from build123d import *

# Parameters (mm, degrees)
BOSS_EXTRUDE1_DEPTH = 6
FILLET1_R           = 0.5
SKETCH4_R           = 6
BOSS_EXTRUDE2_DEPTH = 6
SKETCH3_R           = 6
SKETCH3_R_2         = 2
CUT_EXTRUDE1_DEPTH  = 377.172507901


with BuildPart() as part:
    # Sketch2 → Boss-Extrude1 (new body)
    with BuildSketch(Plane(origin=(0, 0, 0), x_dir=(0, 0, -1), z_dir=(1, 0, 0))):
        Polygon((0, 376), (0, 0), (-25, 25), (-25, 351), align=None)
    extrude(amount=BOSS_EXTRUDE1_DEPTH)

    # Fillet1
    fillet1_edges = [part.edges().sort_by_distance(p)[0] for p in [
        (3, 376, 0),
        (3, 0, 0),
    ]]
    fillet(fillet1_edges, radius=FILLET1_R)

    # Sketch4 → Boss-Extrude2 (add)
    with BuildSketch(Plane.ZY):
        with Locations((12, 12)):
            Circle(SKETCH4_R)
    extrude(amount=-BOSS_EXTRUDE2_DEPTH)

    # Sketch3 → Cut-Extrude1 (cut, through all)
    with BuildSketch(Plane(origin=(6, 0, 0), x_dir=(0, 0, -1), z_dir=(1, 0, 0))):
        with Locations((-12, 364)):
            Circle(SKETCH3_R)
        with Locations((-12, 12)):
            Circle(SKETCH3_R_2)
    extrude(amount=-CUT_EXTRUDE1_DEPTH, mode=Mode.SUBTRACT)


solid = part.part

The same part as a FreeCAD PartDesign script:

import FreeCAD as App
import Part
import Sketcher

V = App.Vector
Q = App.Units.Quantity


def edges_at(feature, points):
    """Names of the edges that pass closest to the given points."""
    edges = feature.Shape.Edges
    near = lambda p: min(range(len(edges)), key=lambda i: edges[i].distToShape(Part.Vertex(*p))[0])
    return sorted({f"Edge{near(p) + 1}" for p in points})

doc = App.newDocument("Part")
body = doc.addObject("PartDesign::Body", "Body")

# Sketch on YZ plane
sketch1 = body.newObject("Sketcher::SketchObject", "Sketch")
sketch1.AttachmentSupport = (doc.getObject("YZ_Plane"), [""])
sketch1.MapMode = "FlatFace"
sketch1.addGeometry(Part.LineSegment(V(0, 0, 0), V(376, 0, 0)), False)
sketch1.addGeometry(Part.LineSegment(V(376, 0, 0), V(351, 25, 0)), False)
sketch1.addGeometry(Part.LineSegment(V(351, 25, 0), V(25, 25, 0)), False)
sketch1.addGeometry(Part.LineSegment(V(25, 25, 0), V(0, 0, 0)), False)
sketch1.addConstraint(Sketcher.Constraint("Coincident", 0, 2, 1, 1))
sketch1.addConstraint(Sketcher.Constraint("Coincident", 1, 2, 2, 1))
sketch1.addConstraint(Sketcher.Constraint("Coincident", 2, 2, 3, 1))
sketch1.addConstraint(Sketcher.Constraint("Coincident", 3, 2, 0, 1))
sketch1.addConstraint(Sketcher.Constraint("Horizontal", 0))
sketch1.addConstraint(Sketcher.Constraint("Horizontal", 2))
sketch1.addConstraint(Sketcher.Constraint("Coincident", 3, 2, -1, 1))
sketch1.addConstraint(Sketcher.Constraint("Perpendicular", 1, 3))
sketch1.addConstraint(Sketcher.Constraint("Equal", 1, 3))
sketch1.addConstraint(Sketcher.Constraint("DistanceX", 0, 1, 0, 2, Q("376 mm")))
sketch1.addConstraint(Sketcher.Constraint("DistanceX", 2, 2, 2, 1, Q("326 mm")))
pad1 = body.newObject("PartDesign::Pad", "Pad")
pad1.Profile = sketch1
pad1.Length = 6
doc.recompute()

fillet = body.newObject("PartDesign::Fillet", "Fillet")
fillet.Base = (pad1, edges_at(pad1, [(3, 376, 0), (3, 0, 0)]))
fillet.Radius = 0.5

# Sketch on YZ plane
sketch2 = body.newObject("Sketcher::SketchObject", "Sketch001")
sketch2.AttachmentSupport = (doc.getObject("YZ_Plane"), [""])
sketch2.MapMode = "FlatFace"
sketch2.addGeometry(Part.Circle(V(12, 12, 0), V(0, 0, 1), 6), False)
sketch2.addConstraint(Sketcher.Constraint("Diameter", 0, Q("12 mm")))
sketch2.addConstraint(Sketcher.Constraint("DistanceX", -1, 1, 0, 3, Q("12 mm")))
sketch2.addConstraint(Sketcher.Constraint("DistanceY", -1, 1, 0, 3, Q("12 mm")))
pad2 = body.newObject("PartDesign::Pad", "Pad001")
pad2.Profile = sketch2
pad2.Length = 6

# Sketch on YZ plane
sketch3 = body.newObject("Sketcher::SketchObject", "Sketch002")
sketch3.AttachmentSupport = (doc.getObject("YZ_Plane"), [""])
sketch3.MapMode = "FlatFace"
sketch3.AttachmentOffset = App.Placement(V(0, 0, 6), App.Rotation())
sketch3.addGeometry(Part.Circle(V(364, 12, 0), V(0, 0, 1), 6), False)
sketch3.addGeometry(Part.Circle(V(12, 12, 0), V(0, 0, 1), 2), False)
sketch3.addConstraint(Sketcher.Constraint("Horizontal", 0, 3, 1, 3))
sketch3.addConstraint(Sketcher.Constraint("Diameter", 0, Q("12 mm")))
sketch3.addConstraint(Sketcher.Constraint("Diameter", 1, Q("4 mm")))
sketch3.addConstraint(Sketcher.Constraint("DistanceX", -1, 1, 0, 3, Q("364 mm")))
sketch3.addConstraint(Sketcher.Constraint("DistanceY", -1, 1, 0, 3, Q("12 mm")))
sketch3.addConstraint(Sketcher.Constraint("DistanceX", -1, 1, 1, 3, Q("12 mm")))
pocket1 = body.newObject("PartDesign::Pocket", "Pocket")
pocket1.Profile = sketch3
pocket1.Type = "ThroughAll"

doc.recompute()
